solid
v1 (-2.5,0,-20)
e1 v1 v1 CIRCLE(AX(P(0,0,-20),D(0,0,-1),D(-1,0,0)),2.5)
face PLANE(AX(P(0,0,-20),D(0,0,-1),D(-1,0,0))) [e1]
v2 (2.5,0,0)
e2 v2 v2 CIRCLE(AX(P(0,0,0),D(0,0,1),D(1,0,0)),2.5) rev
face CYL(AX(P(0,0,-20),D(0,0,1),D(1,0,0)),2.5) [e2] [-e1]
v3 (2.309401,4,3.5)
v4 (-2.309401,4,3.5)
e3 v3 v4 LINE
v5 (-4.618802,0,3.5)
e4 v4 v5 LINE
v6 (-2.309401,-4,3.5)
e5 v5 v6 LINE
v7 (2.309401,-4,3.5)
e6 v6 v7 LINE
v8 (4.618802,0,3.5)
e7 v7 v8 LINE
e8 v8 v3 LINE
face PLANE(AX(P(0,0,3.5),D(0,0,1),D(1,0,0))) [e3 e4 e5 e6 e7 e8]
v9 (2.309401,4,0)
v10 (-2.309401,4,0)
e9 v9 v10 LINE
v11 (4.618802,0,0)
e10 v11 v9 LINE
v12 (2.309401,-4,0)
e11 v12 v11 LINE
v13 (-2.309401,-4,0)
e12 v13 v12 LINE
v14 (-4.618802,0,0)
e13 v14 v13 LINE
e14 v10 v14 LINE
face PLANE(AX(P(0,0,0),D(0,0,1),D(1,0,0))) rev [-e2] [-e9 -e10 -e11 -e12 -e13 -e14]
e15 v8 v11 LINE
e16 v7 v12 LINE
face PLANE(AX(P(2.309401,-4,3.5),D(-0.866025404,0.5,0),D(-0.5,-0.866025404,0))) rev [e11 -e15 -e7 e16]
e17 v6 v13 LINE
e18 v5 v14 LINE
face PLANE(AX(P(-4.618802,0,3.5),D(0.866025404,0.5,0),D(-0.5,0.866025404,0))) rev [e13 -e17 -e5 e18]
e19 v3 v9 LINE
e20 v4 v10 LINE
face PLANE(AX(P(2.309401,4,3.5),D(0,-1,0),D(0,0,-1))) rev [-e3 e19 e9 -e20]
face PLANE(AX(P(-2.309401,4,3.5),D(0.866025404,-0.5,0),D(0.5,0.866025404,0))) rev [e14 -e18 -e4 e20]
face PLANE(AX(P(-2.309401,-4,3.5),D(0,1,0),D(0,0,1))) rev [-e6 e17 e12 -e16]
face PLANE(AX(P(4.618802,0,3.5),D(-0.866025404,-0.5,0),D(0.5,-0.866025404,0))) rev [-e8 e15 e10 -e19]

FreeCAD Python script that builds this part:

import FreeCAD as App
import Part
import Sketcher
Q = App.Units.Quantity

doc = App.newDocument("Part")
params = doc.addObject("Spreadsheet::Sheet", "Params")
for row, (alias, value) in enumerate([
    ("pad1_length", "3.5 mm"),
    ("sketch2_diameter", "5 mm"),
    ("pad2_length", "20 mm"),
], start=1):
    params.set(f"A{row}", alias)
    params.set(f"B{row}", "=" + value)
    params.setAlias(f"B{row}", alias)

body = doc.addObject("PartDesign::Body", "Body")

# Sketch on XY plane
sketch1 = doc.addObject("Sketcher::SketchObject", "Sketch")
body.addObject(sketch1)
sketch1.AttachmentSupport = (doc.XY_Plane, [""])
sketch1.MapMode = "FlatFace"
sketch1.addGeometry(Part.LineSegment(App.Vector(4.6, 0, 0), App.Vector(2.3, 4, 0)), False)
sketch1.addGeometry(Part.LineSegment(App.Vector(2.3, 4, 0), App.Vector(-2.3, 4, 0)), False)
sketch1.addGeometry(Part.LineSegment(App.Vector(-2.3, 4, 0), App.Vector(-4.6, 0, 0)), False)
sketch1.addGeometry(Part.LineSegment(App.Vector(-4.6, 0, 0), App.Vector(-2.3, -4, 0)), False)
sketch1.addGeometry(Part.LineSegment(App.Vector(-2.3, -4, 0), App.Vector(2.3, -4, 0)), False)
sketch1.addGeometry(Part.LineSegment(App.Vector(2.3, -4, 0), App.Vector(4.6, 0, 0)), False)
sketch1.addConstraint(Sketcher.Constraint("Coincident", 0, 2, 1, 1))
sketch1.addConstraint(Sketcher.Constraint("Coincident", 1, 2, 2, 1))
sketch1.addConstraint(Sketcher.Constraint("Coincident", 2, 2, 3, 1))
sketch1.addConstraint(Sketcher.Constraint("Coincident", 3, 2, 4, 1))
sketch1.addConstraint(Sketcher.Constraint("Coincident", 4, 2, 5, 1))
sketch1.addConstraint(Sketcher.Constraint("Coincident", 5, 2, 0, 1))
sketch1.addConstraint(Sketcher.Constraint("Horizontal", 1))
sketch1.addConstraint(Sketcher.Constraint("Horizontal", 4))
sketch1.addConstraint(Sketcher.Constraint("Symmetric", 0, 2, 3, 2, -1, 1))
sketch1.addConstraint(Sketcher.Constraint("Symmetric", 2, 2, 5, 2, -1, 1))
sketch1.addConstraint(Sketcher.Constraint("PointOnObject", 2, 2, -1))
sketch1.addConstraint(Sketcher.Constraint("Parallel", 2, 5))
sketch1.addConstraint(Sketcher.Constraint("Vertical", 1, 2, 3, 2))
sketch1.addConstraint(Sketcher.Constraint("Angle", 0, Q("120 deg")))
sketch1.addConstraint(Sketcher.Constraint("DistanceY", -1, 1, 0, 2, Q("4 mm")))
sketch1.addConstraint(Sketcher.Constraint("DistanceX", -1, 1, 0, 2, Q("2.309401 mm")))
pad1 = doc.addObject("PartDesign::Pad", "Pad")
body.addObject(pad1)
pad1.Profile = sketch1
pad1.setExpression("Length", "Params.pad1_length")

# Sketch on XY plane
sketch2 = doc.addObject("Sketcher::SketchObject", "Sketch001")
body.addObject(sketch2)
sketch2.AttachmentSupport = (doc.XY_Plane, [""])
sketch2.MapMode = "FlatFace"
sketch2.addGeometry(Part.Circle(App.Vector(0, 0, 0), App.Vector(0, 0, 1), 2.5), False)
sketch2.addConstraint(Sketcher.Constraint("Coincident", 0, 3, -1, 1))
sketch2.addConstraint(Sketcher.Constraint("Diameter", 0, Q("5 mm")))
sketch2.setExpression("Constraints[1]", "Params.sketch2_diameter")
pad2 = doc.addObject("PartDesign::Pad", "Pad001")
body.addObject(pad2)
pad2.Profile = sketch2
pad2.setExpression("Length", "Params.pad2_length")
pad2.Reversed = True

doc.recompute()
